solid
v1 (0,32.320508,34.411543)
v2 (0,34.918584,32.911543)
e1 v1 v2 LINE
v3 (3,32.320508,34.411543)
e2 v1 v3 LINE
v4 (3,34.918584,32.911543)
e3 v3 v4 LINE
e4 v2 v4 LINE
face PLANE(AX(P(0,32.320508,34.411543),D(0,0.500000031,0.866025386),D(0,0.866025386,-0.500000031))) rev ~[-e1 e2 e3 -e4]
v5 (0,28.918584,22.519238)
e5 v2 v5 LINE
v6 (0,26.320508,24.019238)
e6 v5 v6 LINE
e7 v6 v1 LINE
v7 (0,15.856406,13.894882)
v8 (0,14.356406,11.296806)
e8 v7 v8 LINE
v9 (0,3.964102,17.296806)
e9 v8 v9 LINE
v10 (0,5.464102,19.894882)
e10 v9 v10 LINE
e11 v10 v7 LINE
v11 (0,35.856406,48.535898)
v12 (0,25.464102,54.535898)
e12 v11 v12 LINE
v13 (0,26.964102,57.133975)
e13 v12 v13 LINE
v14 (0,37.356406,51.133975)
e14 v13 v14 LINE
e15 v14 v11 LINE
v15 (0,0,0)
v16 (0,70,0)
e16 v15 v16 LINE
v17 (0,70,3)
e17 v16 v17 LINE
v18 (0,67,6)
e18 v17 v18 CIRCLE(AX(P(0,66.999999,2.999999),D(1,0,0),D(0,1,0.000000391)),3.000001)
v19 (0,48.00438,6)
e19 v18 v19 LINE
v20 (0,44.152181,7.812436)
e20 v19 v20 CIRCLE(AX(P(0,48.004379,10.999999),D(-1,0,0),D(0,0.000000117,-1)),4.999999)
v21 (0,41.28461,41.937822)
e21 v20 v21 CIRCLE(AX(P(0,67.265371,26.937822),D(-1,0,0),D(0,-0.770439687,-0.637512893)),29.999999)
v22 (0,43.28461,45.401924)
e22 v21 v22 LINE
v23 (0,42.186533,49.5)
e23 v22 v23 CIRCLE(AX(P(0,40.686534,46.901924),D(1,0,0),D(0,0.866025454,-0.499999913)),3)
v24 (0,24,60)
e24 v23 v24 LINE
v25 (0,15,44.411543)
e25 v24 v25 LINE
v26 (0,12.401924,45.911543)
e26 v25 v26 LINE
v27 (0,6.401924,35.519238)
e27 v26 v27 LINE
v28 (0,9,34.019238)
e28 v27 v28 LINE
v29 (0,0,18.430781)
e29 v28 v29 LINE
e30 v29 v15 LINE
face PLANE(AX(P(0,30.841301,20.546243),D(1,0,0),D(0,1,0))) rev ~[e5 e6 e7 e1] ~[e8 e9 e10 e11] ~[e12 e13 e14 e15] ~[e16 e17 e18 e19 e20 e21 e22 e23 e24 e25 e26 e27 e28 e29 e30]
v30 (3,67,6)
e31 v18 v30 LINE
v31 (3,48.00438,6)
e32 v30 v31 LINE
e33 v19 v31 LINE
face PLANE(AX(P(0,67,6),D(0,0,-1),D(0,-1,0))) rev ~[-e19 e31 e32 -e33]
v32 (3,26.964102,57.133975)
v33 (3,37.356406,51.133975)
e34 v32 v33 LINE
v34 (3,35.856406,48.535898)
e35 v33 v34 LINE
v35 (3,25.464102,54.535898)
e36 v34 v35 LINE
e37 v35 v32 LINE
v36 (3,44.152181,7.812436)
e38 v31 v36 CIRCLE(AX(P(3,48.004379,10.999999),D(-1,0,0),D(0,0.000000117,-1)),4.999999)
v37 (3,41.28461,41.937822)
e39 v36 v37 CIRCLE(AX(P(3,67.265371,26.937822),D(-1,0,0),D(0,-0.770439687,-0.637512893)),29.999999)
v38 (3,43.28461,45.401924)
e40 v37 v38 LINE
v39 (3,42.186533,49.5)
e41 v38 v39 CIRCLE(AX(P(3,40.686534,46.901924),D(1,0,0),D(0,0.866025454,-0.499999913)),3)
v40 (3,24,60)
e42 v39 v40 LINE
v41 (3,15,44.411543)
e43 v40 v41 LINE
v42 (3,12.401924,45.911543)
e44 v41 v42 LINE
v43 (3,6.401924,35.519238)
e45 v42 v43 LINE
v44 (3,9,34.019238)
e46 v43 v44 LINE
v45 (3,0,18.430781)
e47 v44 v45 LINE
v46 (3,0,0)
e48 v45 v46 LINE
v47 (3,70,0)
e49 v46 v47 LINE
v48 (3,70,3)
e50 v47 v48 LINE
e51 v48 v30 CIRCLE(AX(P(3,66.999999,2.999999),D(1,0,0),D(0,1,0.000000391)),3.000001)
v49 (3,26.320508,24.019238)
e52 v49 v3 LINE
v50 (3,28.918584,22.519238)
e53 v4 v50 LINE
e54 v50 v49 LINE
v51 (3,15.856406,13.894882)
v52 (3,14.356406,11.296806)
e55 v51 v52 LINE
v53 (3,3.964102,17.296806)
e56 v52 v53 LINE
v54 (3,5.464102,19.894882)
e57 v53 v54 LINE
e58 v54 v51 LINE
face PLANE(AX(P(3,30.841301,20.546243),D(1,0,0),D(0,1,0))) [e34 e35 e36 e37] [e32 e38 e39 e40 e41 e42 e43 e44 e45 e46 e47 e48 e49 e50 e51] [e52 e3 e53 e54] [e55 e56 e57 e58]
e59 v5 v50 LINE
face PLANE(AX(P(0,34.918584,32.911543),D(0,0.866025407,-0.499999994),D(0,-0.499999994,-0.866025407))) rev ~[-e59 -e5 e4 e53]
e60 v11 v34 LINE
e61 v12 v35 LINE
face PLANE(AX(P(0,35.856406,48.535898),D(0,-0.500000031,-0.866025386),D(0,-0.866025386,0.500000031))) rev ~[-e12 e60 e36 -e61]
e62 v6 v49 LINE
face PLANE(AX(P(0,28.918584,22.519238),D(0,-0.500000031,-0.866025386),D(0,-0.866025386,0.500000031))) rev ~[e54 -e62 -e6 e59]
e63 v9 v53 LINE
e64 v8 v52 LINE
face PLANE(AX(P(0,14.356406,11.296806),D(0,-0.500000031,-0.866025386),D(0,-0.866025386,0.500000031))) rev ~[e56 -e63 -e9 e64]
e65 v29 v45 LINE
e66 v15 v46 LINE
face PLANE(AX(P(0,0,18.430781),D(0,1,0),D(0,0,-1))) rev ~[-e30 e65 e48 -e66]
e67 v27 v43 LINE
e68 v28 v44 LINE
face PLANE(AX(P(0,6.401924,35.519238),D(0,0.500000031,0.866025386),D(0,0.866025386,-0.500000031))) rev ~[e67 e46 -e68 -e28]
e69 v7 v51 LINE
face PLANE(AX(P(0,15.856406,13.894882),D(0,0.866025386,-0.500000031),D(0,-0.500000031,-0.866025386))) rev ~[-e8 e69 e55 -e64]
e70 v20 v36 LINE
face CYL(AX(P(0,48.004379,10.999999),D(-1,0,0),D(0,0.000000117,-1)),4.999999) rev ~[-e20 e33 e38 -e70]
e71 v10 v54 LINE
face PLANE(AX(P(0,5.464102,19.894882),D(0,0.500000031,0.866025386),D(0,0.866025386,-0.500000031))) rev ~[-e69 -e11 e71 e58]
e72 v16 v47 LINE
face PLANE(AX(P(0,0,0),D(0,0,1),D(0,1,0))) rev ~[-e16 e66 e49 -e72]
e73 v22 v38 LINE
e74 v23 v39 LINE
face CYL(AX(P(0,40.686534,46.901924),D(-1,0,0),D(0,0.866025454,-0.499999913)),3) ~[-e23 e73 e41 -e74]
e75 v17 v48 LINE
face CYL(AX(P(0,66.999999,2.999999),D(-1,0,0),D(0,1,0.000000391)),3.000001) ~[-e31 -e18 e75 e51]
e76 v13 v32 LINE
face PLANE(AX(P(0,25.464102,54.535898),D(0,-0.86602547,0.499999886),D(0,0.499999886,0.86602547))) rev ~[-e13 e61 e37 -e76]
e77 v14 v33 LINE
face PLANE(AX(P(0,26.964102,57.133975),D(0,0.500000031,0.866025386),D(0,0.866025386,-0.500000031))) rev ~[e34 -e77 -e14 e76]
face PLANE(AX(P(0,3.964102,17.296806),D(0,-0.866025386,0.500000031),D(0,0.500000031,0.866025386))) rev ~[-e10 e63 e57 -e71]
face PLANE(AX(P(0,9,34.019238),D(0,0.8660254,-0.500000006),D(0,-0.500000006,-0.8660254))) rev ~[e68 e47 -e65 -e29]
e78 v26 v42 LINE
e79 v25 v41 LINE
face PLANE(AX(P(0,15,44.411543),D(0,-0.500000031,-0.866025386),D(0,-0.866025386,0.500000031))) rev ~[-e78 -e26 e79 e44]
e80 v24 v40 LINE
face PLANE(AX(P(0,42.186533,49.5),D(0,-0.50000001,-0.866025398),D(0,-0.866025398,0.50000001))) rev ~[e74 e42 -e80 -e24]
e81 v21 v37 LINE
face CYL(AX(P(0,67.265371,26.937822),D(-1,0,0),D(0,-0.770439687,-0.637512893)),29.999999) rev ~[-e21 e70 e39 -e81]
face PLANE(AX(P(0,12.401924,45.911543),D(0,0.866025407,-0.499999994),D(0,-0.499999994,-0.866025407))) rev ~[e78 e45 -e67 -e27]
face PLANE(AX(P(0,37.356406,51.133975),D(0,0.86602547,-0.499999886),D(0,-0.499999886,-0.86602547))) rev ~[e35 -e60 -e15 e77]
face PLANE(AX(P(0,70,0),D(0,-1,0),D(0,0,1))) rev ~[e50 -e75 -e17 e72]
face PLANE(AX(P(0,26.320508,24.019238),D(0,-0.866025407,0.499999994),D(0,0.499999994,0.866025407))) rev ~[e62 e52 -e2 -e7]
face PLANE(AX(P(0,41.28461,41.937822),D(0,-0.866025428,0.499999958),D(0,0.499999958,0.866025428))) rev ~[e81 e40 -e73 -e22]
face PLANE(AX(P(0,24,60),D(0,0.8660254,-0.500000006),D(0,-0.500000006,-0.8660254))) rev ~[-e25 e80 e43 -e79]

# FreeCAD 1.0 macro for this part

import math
import FreeCAD as App
import Part
import Sketcher

V = App.Vector
Q = App.Units.Quantity


def add_polygon(sketch, points):
    """Adds a closed chain of lines whose ends are joined by coincident constraints."""
    first, n = sketch.GeometryCount, len(points)
    for a, b in zip(points, points[1:] + points[:1]):
        sketch.addGeometry(Part.LineSegment(App.Vector(*a, 0), App.Vector(*b, 0)), False)
    for i in range(n):
        sketch.addConstraint(Sketcher.Constraint("Coincident", first + i, 2, first + (i + 1) % n, 1))

doc = App.newDocument("Part")
body = doc.addObject("PartDesign::Body", "Body")

# Sketch on YZ plane
sketch1 = body.newObject("Sketcher::SketchObject", "Sketch")
sketch1.AttachmentSupport = (doc.getObject("YZ_Plane"), [""])
sketch1.MapMode = "FlatFace"
sketch1.addGeometry(Part.LineSegment(V(9, 34.019238, 0), V(0, 18.430781, 0)), False)  # 0
sketch1.addGeometry(Part.LineSegment(V(0, 18.430781, 0), V(0, 0, 0)), False)  # 1
sketch1.addGeometry(Part.LineSegment(V(0, 0, 0), V(70, 0, 0)), False)  # 2
sketch1.addGeometry(Part.LineSegment(V(70, 0, 0), V(70, 3, 0)), False)  # 3
sketch1.addGeometry(Part.ArcOfCircle(Part.Circle(V(66.999999, 2.999999, 0), V(0, 0, 1), 3.000001), math.radians(0.000022), math.radians(89.999978)), False)  # 4
sketch1.addGeometry(Part.LineSegment(V(67, 6, 0), V(48.00438, 6, 0)), False)  # 5
sketch1.addGeometry(Part.ArcOfCircle(Part.Circle(V(48.004379, 10.999999, 0), V(0, 0, 1), 4.999999), math.radians(-140.3934), math.radians(-89.999993)), False)  # 6
sketch1.addGeometry(Part.ArcOfCircle(Part.Circle(V(67.265371, 26.937822, 0), V(0, 0, 1), 29.999999), math.radians(149.999999), math.radians(219.606611)), False)  # 7
sketch1.addGeometry(Part.LineSegment(V(41.28461, 41.937822, 0), V(43.28461, 45.401924, 0)), False)  # 8
sketch1.addGeometry(Part.ArcOfCircle(Part.Circle(V(40.686534, 46.901924, 0), V(0, 0, 1), 3), math.radians(-29.999994), math.radians(60.000016)), False)  # 9
sketch1.addGeometry(Part.LineSegment(V(42.186533, 49.5, 0), V(24, 60, 0)), False)  # 10
sketch1.addGeometry(Part.LineSegment(V(24, 60, 0), V(15, 44.411543, 0)), False)  # 11
sketch1.addGeometry(Part.LineSegment(V(15, 44.411543, 0), V(12.401924, 45.911543, 0)), False)  # 12
sketch1.addGeometry(Part.LineSegment(V(12.401924, 45.911543, 0), V(6.401924, 35.519238, 0)), False)  # 13
sketch1.addGeometry(Part.LineSegment(V(6.401924, 35.519238, 0), V(9, 34.019238, 0)), False)  # 14
add_polygon(sketch1, [(14.356406, 11.296806), (3.964102, 17.296806), (5.464102, 19.894882), (15.856406, 13.894882)])  # lines 15-18
add_polygon(sketch1, [(28.918584, 22.519238), (26.320508, 24.019238), (32.320508, 34.411543), (34.918584, 32.911543)])  # lines 19-22
add_polygon(sketch1, [(35.856406, 48.535898), (25.464102, 54.535898), (26.964102, 57.133975), (37.356406, 51.133975)])  # lines 23-26
sketch1.addConstraint([
    Sketcher.Constraint("Coincident", 0, 2, 1, 1),
    Sketcher.Constraint("Coincident", 1, 2, 2, 1),
    Sketcher.Constraint("Coincident", 2, 2, 3, 1),
    Sketcher.Constraint("Tangent", 3, 2, 4, 1),
    Sketcher.Constraint("Tangent", 4, 2, 5, 1),
    Sketcher.Constraint("Tangent", 5, 2, 6, 2),
    Sketcher.Constraint("Tangent", 6, 1, 7, 2),
    Sketcher.Constraint("Tangent", 7, 1, 8, 1),
    Sketcher.Constraint("Tangent", 8, 2, 9, 1),
    Sketcher.Constraint("Tangent", 9, 2, 10, 1),
    Sketcher.Constraint("Coincident", 10, 2, 11, 1),
    Sketcher.Constraint("Coincident", 11, 2, 12, 1),
    Sketcher.Constraint("Coincident", 12, 2, 13, 1),
    Sketcher.Constraint("Coincident", 13, 2, 14, 1),
    Sketcher.Constraint("Coincident", 14, 2, 0, 1),
    Sketcher.Constraint("Vertical", 1),
    Sketcher.Constraint("Horizontal", 2),
    Sketcher.Constraint("Vertical", 3),
    Sketcher.Constraint("Horizontal", 5),
    Sketcher.Constraint("Coincident", 1, 2, -1, 1),
    Sketcher.Constraint("Equal", 4, 9),
    Sketcher.Constraint("Parallel", 0, 8),
    Sketcher.Constraint("Perpendicular", 8, 10),
    Sketcher.Constraint("Perpendicular", 10, 11),
    Sketcher.Constraint("Perpendicular", 11, 12),
    Sketcher.Constraint("Perpendicular", 12, 13),
    Sketcher.Constraint("Perpendicular", 13, 14),
    Sketcher.Constraint("Parallel", 14, 15),
    Sketcher.Constraint("Perpendicular", 15, 16),
    Sketcher.Constraint("Perpendicular", 16, 17),
    Sketcher.Constraint("Perpendicular", 17, 18),
    Sketcher.Constraint("Perpendicular", 18, 19),
    Sketcher.Constraint("Perpendicular", 19, 20),
    Sketcher.Constraint("Perpendicular", 20, 21),
    Sketcher.Constraint("Perpendicular", 21, 22),
    Sketcher.Constraint("Perpendicular", 22, 23),
    Sketcher.Constraint("Perpendicular", 23, 24),
    Sketcher.Constraint("Perpendicular", 24, 25),
    Sketcher.Constraint("Perpendicular", 25, 26),
    Sketcher.Constraint("Equal", 0, 11),
    Sketcher.Constraint("Equal", 12, 14),
    Sketcher.Constraint("Equal", 13, 15),
    Sketcher.Constraint("Equal", 14, 16),
    Sketcher.Constraint("Equal", 18, 19),
    Sketcher.Constraint("Equal", 17, 20),
    Sketcher.Constraint("Equal", 22, 23),
    Sketcher.Constraint("Equal", 21, 24),
    Sketcher.Constraint("Radius", 4, 3.000001),
    Sketcher.Constraint("Radius", 6, 4.999999),
    Sketcher.Constraint("Radius", 7, 29.999999),
    Sketcher.Constraint("DistanceX", 2, 1, 2, 2, 70.0),
    Sketcher.Constraint("DistanceY", 3, 1, 3, 2, 3.0),
    Sketcher.Constraint("Angle", 0, Q("-120 deg")),
    Sketcher.Constraint("Distance", 0, 18.0),
    Sketcher.Constraint("Distance", 8, 4.0),
    Sketcher.Constraint("Distance", 10, 21.0),
    Sketcher.Constraint("Distance", 12, 3.0),
    Sketcher.Constraint("Distance", 13, 12.0),
    Sketcher.Constraint("DistanceY", -1, 1, 10, 2, 60.0),
    Sketcher.Constraint("DistanceY", 19, 2, 14, 2, 10.0),
    Sketcher.Constraint("DistanceX", -1, 1, 15, 2, 3.964102),
    Sketcher.Constraint("DistanceY", -1, 1, 23, 2, 54.535898),
    Sketcher.Constraint("DistanceY", 0, 2, 16, 2, 1.464101),
    Sketcher.Constraint("DistanceX", -1, 1, 19, 2, 26.320508),
    Sketcher.Constraint("DistanceX", 12, 2, 23, 2, 13.062178),
])
pad1 = body.newObject("PartDesign::Pad", "Pad")
pad1.Profile = sketch1
pad1.Length = 3

doc.recompute()
